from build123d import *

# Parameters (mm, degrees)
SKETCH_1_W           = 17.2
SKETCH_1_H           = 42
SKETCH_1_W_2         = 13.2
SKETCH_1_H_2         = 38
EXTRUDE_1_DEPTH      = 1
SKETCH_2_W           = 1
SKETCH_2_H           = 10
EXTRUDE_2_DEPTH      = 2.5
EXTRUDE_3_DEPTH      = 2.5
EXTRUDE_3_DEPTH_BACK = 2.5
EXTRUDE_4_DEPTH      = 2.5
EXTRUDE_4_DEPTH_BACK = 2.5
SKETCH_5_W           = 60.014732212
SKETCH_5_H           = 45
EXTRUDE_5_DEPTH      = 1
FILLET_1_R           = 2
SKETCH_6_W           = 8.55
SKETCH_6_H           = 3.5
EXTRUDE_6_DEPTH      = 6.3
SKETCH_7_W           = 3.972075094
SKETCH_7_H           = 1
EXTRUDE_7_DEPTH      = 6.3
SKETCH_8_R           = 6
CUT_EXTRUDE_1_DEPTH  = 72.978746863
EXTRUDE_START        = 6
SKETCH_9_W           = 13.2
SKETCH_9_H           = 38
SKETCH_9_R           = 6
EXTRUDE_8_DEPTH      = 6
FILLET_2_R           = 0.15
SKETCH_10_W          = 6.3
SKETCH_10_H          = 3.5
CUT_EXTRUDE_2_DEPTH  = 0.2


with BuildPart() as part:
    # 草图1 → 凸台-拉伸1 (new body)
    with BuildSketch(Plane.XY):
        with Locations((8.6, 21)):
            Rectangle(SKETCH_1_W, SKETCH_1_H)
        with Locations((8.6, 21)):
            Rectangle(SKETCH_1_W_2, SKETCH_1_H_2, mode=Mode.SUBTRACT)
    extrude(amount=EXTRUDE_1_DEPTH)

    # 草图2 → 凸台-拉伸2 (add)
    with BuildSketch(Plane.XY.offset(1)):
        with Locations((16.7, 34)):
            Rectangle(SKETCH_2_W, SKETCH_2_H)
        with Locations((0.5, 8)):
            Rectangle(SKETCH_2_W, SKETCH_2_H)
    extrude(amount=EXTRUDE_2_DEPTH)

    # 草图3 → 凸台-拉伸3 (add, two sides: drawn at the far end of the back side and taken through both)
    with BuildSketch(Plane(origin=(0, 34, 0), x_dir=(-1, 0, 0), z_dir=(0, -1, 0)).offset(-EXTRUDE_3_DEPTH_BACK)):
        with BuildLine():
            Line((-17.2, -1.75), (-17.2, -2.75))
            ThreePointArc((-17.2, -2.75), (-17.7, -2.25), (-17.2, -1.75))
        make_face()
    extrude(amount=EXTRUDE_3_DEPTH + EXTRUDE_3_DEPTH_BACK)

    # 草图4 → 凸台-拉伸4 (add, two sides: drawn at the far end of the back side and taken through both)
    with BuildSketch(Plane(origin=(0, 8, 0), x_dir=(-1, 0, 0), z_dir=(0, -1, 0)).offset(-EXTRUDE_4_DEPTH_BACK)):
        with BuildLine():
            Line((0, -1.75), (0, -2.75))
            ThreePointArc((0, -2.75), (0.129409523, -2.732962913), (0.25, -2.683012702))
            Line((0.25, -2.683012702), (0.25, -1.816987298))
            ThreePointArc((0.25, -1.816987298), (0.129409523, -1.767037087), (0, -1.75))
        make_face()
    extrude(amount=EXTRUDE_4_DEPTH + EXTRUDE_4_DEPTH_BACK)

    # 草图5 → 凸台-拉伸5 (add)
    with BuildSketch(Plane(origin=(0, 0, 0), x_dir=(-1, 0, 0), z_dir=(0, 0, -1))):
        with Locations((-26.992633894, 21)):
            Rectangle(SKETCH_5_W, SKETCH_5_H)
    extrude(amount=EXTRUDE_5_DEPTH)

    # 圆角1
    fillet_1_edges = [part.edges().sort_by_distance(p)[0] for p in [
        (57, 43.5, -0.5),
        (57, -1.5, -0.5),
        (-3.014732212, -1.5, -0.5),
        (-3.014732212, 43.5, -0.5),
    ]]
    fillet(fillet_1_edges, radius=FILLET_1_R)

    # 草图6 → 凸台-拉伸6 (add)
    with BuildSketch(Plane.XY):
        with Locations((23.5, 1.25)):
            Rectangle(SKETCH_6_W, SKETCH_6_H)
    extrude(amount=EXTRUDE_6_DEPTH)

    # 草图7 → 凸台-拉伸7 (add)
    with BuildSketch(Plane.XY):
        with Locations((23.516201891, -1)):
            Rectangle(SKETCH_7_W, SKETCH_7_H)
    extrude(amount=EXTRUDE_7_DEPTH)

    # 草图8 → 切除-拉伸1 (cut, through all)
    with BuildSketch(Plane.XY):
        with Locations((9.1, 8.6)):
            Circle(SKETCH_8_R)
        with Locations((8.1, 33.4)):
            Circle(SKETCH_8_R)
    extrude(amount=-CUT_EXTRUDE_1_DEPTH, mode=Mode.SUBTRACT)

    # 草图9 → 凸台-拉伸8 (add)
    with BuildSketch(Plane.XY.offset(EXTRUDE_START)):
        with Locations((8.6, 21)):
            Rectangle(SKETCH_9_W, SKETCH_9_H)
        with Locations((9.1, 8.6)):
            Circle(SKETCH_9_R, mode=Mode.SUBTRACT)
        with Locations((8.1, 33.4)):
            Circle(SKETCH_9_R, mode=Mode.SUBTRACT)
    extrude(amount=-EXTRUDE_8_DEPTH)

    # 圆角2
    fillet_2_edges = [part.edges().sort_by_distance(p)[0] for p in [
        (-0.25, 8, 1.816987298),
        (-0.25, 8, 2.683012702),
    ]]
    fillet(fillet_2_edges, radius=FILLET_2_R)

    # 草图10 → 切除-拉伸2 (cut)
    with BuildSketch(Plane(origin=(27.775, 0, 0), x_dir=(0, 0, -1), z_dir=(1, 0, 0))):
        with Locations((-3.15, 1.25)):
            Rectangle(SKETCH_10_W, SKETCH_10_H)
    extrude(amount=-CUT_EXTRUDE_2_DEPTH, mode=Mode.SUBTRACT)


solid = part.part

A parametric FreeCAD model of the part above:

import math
import FreeCAD as App
import Part
import Sketcher
from FreeCAD import Vector


def edges_at(feature, points):
    """Names of the edges that pass closest to the given points."""
    edges = feature.Shape.Edges
    near = lambda p: min(range(len(edges)), key=lambda i: edges[i].distToShape(Part.Vertex(*p))[0])
    return sorted({f"Edge{near(p) + 1}" for p in points})

doc = App.newDocument("Part")
body = doc.addObject("PartDesign::Body", "Body")

sketch1 = body.newObject("Sketcher::SketchObject", "Sketch")
sketch1.AttachmentSupport = (doc.getObject("XY_Plane"), [""])
sketch1.MapMode = "FlatFace"
sketch1.addGeometry([
    Part.LineSegment(Vector(0, 42, 0), Vector(0, 0, 0)),
    Part.LineSegment(Vector(0, 0, 0), Vector(17, 0, 0)),
    Part.LineSegment(Vector(17, 0, 0), Vector(17, 42, 0)),
    Part.LineSegment(Vector(17, 42, 0), Vector(0, 42, 0)),
    Part.LineSegment(Vector(15, 2, 0), Vector(2, 2, 0)),
    Part.LineSegment(Vector(2, 2, 0), Vector(2, 40, 0)),
    Part.LineSegment(Vector(2, 40, 0), Vector(15, 40, 0)),
    Part.LineSegment(Vector(15, 40, 0), Vector(15, 2, 0)),
], False)
sketch1.addConstraint([
    Sketcher.Constraint("Coincident", 0, 2, 1, 1),
    Sketcher.Constraint("Coincident", 1, 2, 2, 1),
    Sketcher.Constraint("Coincident", 2, 2, 3, 1),
    Sketcher.Constraint("Coincident", 3, 2, 0, 1),
    Sketcher.Constraint("Coincident", 4, 2, 5, 1),
    Sketcher.Constraint("Coincident", 5, 2, 6, 1),
    Sketcher.Constraint("Coincident", 6, 2, 7, 1),
    Sketcher.Constraint("Coincident", 7, 2, 4, 1),
    Sketcher.Constraint("Vertical", 0),
    Sketcher.Constraint("Horizontal", 1),
    Sketcher.Constraint("Vertical", 2),
    Sketcher.Constraint("Horizontal", 3),
    Sketcher.Constraint("Horizontal", 4),
    Sketcher.Constraint("Vertical", 5),
    Sketcher.Constraint("Horizontal", 6),
    Sketcher.Constraint("Vertical", 7),
    Sketcher.Constraint("Coincident", 0, 2, -1, 1),
    Sketcher.Constraint("DistanceY", 0, 2, 0, 1, 42.0),
    Sketcher.Constraint("DistanceY", 5, 1, 5, 2, 38.0),
    Sketcher.Constraint("DistanceX", 1, 1, 1, 2, 17.2),
    Sketcher.Constraint("DistanceX", 4, 2, 4, 1, 13.2),
    Sketcher.Constraint("DistanceX", -1, 1, 4, 2, 2.0),
    Sketcher.Constraint("DistanceY", -1, 1, 4, 2, 2.0),
])
pad1 = body.newObject("PartDesign::Pad", "Pad")
pad1.Profile = sketch1
pad1.Length = 1

sketch2 = body.newObject("Sketcher::SketchObject", "Sketch001")
sketch2.AttachmentSupport = (doc.getObject("XY_Plane"), [""])
sketch2.MapMode = "FlatFace"
sketch2.AttachmentOffset = App.Placement(Vector(0, 0, 1), App.Rotation())
sketch2.addGeometry([
    Part.LineSegment(Vector(16.2, 39, 0), Vector(16.2, 29, 0)),
    Part.LineSegment(Vector(16.2, 29, 0), Vector(17.2, 29, 0)),
    Part.LineSegment(Vector(17.2, 29, 0), Vector(17.2, 39, 0)),
    Part.LineSegment(Vector(17.2, 39, 0), Vector(16.2, 39, 0)),
    Part.LineSegment(Vector(0, 13, 0), Vector(0, 3, 0)),
    Part.LineSegment(Vector(0, 3, 0), Vector(1, 3, 0)),
    Part.LineSegment(Vector(1, 3, 0), Vector(1, 13, 0)),
    Part.LineSegment(Vector(1, 13, 0), Vector(0, 13, 0)),
], False)
sketch2.addConstraint([
    Sketcher.Constraint("Coincident", 0, 2, 1, 1),
    Sketcher.Constraint("Coincident", 1, 2, 2, 1),
    Sketcher.Constraint("Coincident", 2, 2, 3, 1),
    Sketcher.Constraint("Coincident", 3, 2, 0, 1),
    Sketcher.Constraint("Coincident", 4, 2, 5, 1),
    Sketcher.Constraint("Coincident", 5, 2, 6, 1),
    Sketcher.Constraint("Coincident", 6, 2, 7, 1),
    Sketcher.Constraint("Coincident", 7, 2, 4, 1),
    Sketcher.Constraint("Vertical", 0),
    Sketcher.Constraint("Horizontal", 1),
    Sketcher.Constraint("Vertical", 2),
    Sketcher.Constraint("Horizontal", 3),
    Sketcher.Constraint("Vertical", 4),
    Sketcher.Constraint("Horizontal", 5),
    Sketcher.Constraint("Vertical", 6),
    Sketcher.Constraint("Horizontal", 7),
    Sketcher.Constraint("PointOnObject", 4, 2, -2),
    Sketcher.Constraint("Equal", 3, 5),
    Sketcher.Constraint("Equal", 2, 4),
    Sketcher.Constraint("DistanceX", 1, 1, 1, 2, 1.0),
    Sketcher.Constraint("DistanceY", 0, 2, 0, 1, 10.0),
    Sketcher.Constraint("DistanceY", -1, 1, 0, 2, 29.0),
    Sketcher.Constraint("DistanceY", -1, 1, 4, 2, 3.0),
    Sketcher.Constraint("DistanceX", -1, 1, 0, 2, 16.2),
])
pad2 = body.newObject("PartDesign::Pad", "Pad001")
pad2.Profile = sketch2
pad2.Length = 2.5

sketch3 = body.newObject("Sketcher::SketchObject", "Sketch002")
sketch3.AttachmentSupport = (doc.getObject("XZ_Plane"), [""])
sketch3.MapMode = "FlatFace"
sketch3.AttachmentOffset = App.Placement(Vector(0, 0, -34), App.Rotation())
sketch3.addGeometry([
    Part.LineSegment(Vector(17.2, 2.8, 0), Vector(17.2, 1.8, 0)),
    Part.ArcOfCircle(Part.Circle(Vector(17.2, 2.2, 0), Vector(0, 0, 1), 0.5), math.radians(-90), math.radians(90)),
], False)
sketch3.addConstraint([
    Sketcher.Constraint("Coincident", 0, 1, 1, 2),
    Sketcher.Constraint("Coincident", 1, 1, 0, 2),
    Sketcher.Constraint("Vertical", 0),
    Sketcher.Constraint("Vertical", 1, 3, 0, 1),
    Sketcher.Constraint("Radius", 1, 0.5),
    Sketcher.Constraint("DistanceX", -1, 1, 1, 3, 17.2),
    Sketcher.Constraint("DistanceY", -1, 1, 1, 3, 2.25),
])
pad3 = body.newObject("PartDesign::Pad", "Pad002")
pad3.Profile = sketch3
pad3.Type = "TwoLengths"
pad3.Length = 2.5
pad3.Length2 = 2.5

sketch4 = body.newObject("Sketcher::SketchObject", "Sketch003")
sketch4.AttachmentSupport = (doc.getObject("XZ_Plane"), [""])
sketch4.MapMode = "FlatFace"
sketch4.AttachmentOffset = App.Placement(Vector(0, 0, -8), App.Rotation())
sketch4.addGeometry([
    Part.LineSegment(Vector(0, 1.75, 0), Vector(0, 2.75, 0)),
    Part.ArcOfCircle(Part.Circle(Vector(0, 2.25, 0), Vector(0, 0, 1), 0.5), math.radians(90), math.radians(120)),
    Part.LineSegment(Vector(-0.25, 2.68, 0), Vector(-0.25, 1.82, 0)),
    Part.ArcOfCircle(Part.Circle(Vector(0, 2.25, 0), Vector(0, 0, 1), 0.5), math.radians(-120), math.radians(-90)),
], False)
sketch4.addConstraint([
    Sketcher.Constraint("Coincident", 0, 2, 1, 1),
    Sketcher.Constraint("Coincident", 1, 2, 2, 1),
    Sketcher.Constraint("Coincident", 2, 2, 3, 1),
    Sketcher.Constraint("Coincident", 3, 2, 0, 1),
    Sketcher.Constraint("Vertical", 0),
    Sketcher.Constraint("Vertical", 2),
    Sketcher.Constraint("Coincident", 3, 3, 1, 3),
    Sketcher.Constraint("Equal", 1, 3),
    Sketcher.Constraint("PointOnObject", 1, 3, -2),
    Sketcher.Constraint("PointOnObject", 0, 2, -2),
    Sketcher.Constraint("Radius", 1, 0.5),
    Sketcher.Constraint("DistanceY", -1, 1, 1, 3, 2.25),
    Sketcher.Constraint("DistanceX", 1, 2, -1, 1, 0.25),
])
pad4 = body.newObject("PartDesign::Pad", "Pad003")
pad4.Profile = sketch4
pad4.Type = "TwoLengths"
pad4.Length = 2.5
pad4.Length2 = 2.5

sketch5 = body.newObject("Sketcher::SketchObject", "Sketch004")
sketch5.AttachmentSupport = (doc.getObject("XY_Plane"), [""])
sketch5.MapMode = "FlatFace"
sketch5.addGeometry([
    Part.LineSegment(Vector(57, 44, 0), Vector(57, -2, 0)),
    Part.LineSegment(Vector(57, -2, 0), Vector(-3, -2, 0)),
    Part.LineSegment(Vector(-3, -2, 0), Vector(-3, 44, 0)),
    Part.LineSegment(Vector(-3, 44, 0), Vector(57, 44, 0)),
], False)
sketch5.addConstraint([
    Sketcher.Constraint("Coincident", 0, 2, 1, 1),
    Sketcher.Constraint("Coincident", 1, 2, 2, 1),
    Sketcher.Constraint("Coincident", 2, 2, 3, 1),
    Sketcher.Constraint("Coincident", 3, 2, 0, 1),
    Sketcher.Constraint("Vertical", 0),
    Sketcher.Constraint("Horizontal", 1),
    Sketcher.Constraint("Vertical", 2),
    Sketcher.Constraint("Horizontal", 3),
    Sketcher.Constraint("DistanceY", 0, 2, 0, 1, 45.0),
    Sketcher.Constraint("DistanceX", -1, 1, 0, 2, 57.0),
    Sketcher.Constraint("DistanceY", 0, 2, -1, 1, 1.5),
    Sketcher.Constraint("DistanceX", 1, 2, 1, 1, 60.014732),
])
pad5 = body.newObject("PartDesign::Pad", "Pad004")
pad5.Profile = sketch5
pad5.Length = 1
pad5.Reversed = True
doc.recompute()

fillet = body.newObject("PartDesign::Fillet", "Fillet")
fillet.Base = (pad5, edges_at(pad5, [
    (57, 43.5, -0.5),
    (57, -1.5, -0.5),
    (-3.015, -1.5, -0.5),
    (-3.015, 43.5, -0.5),
]))
fillet.Radius = 2

sketch6 = body.newObject("Sketcher::SketchObject", "Sketch005")
sketch6.AttachmentSupport = (doc.getObject("XY_Plane"), [""])
sketch6.MapMode = "FlatFace"
sketch6.addGeometry([
    Part.LineSegment(Vector(19.2, 3, 0), Vector(19.2, -0.5, 0)),
    Part.LineSegment(Vector(19.2, -0.5, 0), Vector(27.8, -0.5, 0)),
    Part.LineSegment(Vector(27.8, -0.5, 0), Vector(27.8, 3, 0)),
    Part.LineSegment(Vector(27.8, 3, 0), Vector(19.2, 3, 0)),
], False)
sketch6.addConstraint([
    Sketcher.Constraint("Coincident", 0, 2, 1, 1),
    Sketcher.Constraint("Coincident", 1, 2, 2, 1),
    Sketcher.Constraint("Coincident", 2, 2, 3, 1),
    Sketcher.Constraint("Coincident", 3, 2, 0, 1),
    Sketcher.Constraint("Vertical", 0),
    Sketcher.Constraint("Horizontal", 1),
    Sketcher.Constraint("Vertical", 2),
    Sketcher.Constraint("Horizontal", 3),
    Sketcher.Constraint("DistanceY", 0, 2, 0, 1, 3.5),
    Sketcher.Constraint("DistanceY", -1, 1, 2, 2, 3.0),
    Sketcher.Constraint("DistanceX", 1, 1, 1, 2, 8.55),
    Sketcher.Constraint("DistanceX", -1, 1, 0, 2, 19.225),
])
pad6 = body.newObject("PartDesign::Pad", "Pad005")
pad6.Profile = sketch6
pad6.Length = 6.3

sketch7 = body.newObject("Sketcher::SketchObject", "Sketch006")
sketch7.AttachmentSupport = (doc.getObject("XY_Plane"), [""])
sketch7.MapMode = "FlatFace"
sketch7.addGeometry([
    Part.LineSegment(Vector(21.5, -0.5, 0), Vector(21.5, -1.5, 0)),
    Part.LineSegment(Vector(21.5, -1.5, 0), Vector(25.5, -1.5, 0)),
    Part.LineSegment(Vector(25.5, -1.5, 0), Vector(25.5, -0.5, 0)),
    Part.LineSegment(Vector(25.5, -0.5, 0), Vector(21.5, -0.5, 0)),
], False)
sketch7.addConstraint([
    Sketcher.Constraint("Coincident", 0, 2, 1, 1),
    Sketcher.Constraint("Coincident", 1, 2, 2, 1),
    Sketcher.Constraint("Coincident", 2, 2, 3, 1),
    Sketcher.Constraint("Coincident", 3, 2, 0, 1),
    Sketcher.Constraint("Vertical", 0),
    Sketcher.Constraint("Horizontal", 1),
    Sketcher.Constraint("Vertical", 2),
    Sketcher.Constraint("Horizontal", 3),
    Sketcher.Constraint("DistanceY", 0, 2, 0, 1, 1.0),
    Sketcher.Constraint("DistanceY", 0, 2, -1, 1, 1.5),
    Sketcher.Constraint("DistanceX", 1, 1, 1, 2, 3.972075),
    Sketcher.Constraint("DistanceX", -1, 1, 1, 2, 25.502239),
])
pad7 = body.newObject("PartDesign::Pad", "Pad006")
pad7.Profile = sketch7
pad7.Length = 6.3

sketch8 = body.newObject("Sketcher::SketchObject", "Sketch007")
sketch8.AttachmentSupport = (doc.getObject("XY_Plane"), [""])
sketch8.MapMode = "FlatFace"
sketch8.addGeometry([
    Part.Circle(Vector(9, 9, 0), Vector(0, 0, 1), 6),
    Part.Circle(Vector(8, 33, 0), Vector(0, 0, 1), 6),
], False)
sketch8.addConstraint([
    Sketcher.Constraint("Equal", 0, 1),
    Sketcher.Constraint("Diameter", 0, 12.0),
    Sketcher.Constraint("DistanceX", 1, 3, 0, 3, 1.0),
    Sketcher.Constraint("DistanceX", -1, 1, 0, 3, 9.1),
    Sketcher.Constraint("DistanceY", -1, 1, 0, 3, 8.6),
    Sketcher.Constraint("DistanceY", -1, 1, 1, 3, 33.4),
])
pocket1 = body.newObject("PartDesign::Pocket", "Pocket")
pocket1.Profile = sketch8
pocket1.Type = "ThroughAll"

sketch9 = body.newObject("Sketcher::SketchObject", "Sketch008")
sketch9.AttachmentSupport = (doc.getObject("XY_Plane"), [""])
sketch9.MapMode = "FlatFace"
sketch9.AttachmentOffset = App.Placement(Vector(0, 0, 6), App.Rotation())
sketch9.addGeometry([
    Part.LineSegment(Vector(2, 40, 0), Vector(2, 2, 0)),
    Part.LineSegment(Vector(2, 2, 0), Vector(15, 2, 0)),
    Part.LineSegment(Vector(15, 2, 0), Vector(15, 40, 0)),
    Part.LineSegment(Vector(15, 40, 0), Vector(2, 40, 0)),
    Part.Circle(Vector(9, 9, 0), Vector(0, 0, 1), 6),
    Part.Circle(Vector(8, 33, 0), Vector(0, 0, 1), 6),
], False)
sketch9.addConstraint([
    Sketcher.Constraint("Coincident", 0, 2, 1, 1),
    Sketcher.Constraint("Coincident", 1, 2, 2, 1),
    Sketcher.Constraint("Coincident", 2, 2, 3, 1),
    Sketcher.Constraint("Coincident", 3, 2, 0, 1),
    Sketcher.Constraint("Vertical", 0),
    Sketcher.Constraint("Horizontal", 1),
    Sketcher.Constraint("Vertical", 2),
    Sketcher.Constraint("Horizontal", 3),
    Sketcher.Constraint("Equal", 4, 5),
    Sketcher.Constraint("Diameter", 4, 12.0),
    Sketcher.Constraint("DistanceY", 0, 2, 0, 1, 38.0),
    Sketcher.Constraint("DistanceX", 1, 1, 1, 2, 13.2),
    Sketcher.Constraint("DistanceX", -1, 1, 0, 2, 2.0),
    Sketcher.Constraint("DistanceY", -1, 1, 0, 2, 2.0),
    Sketcher.Constraint("DistanceX", 5, 3, 4, 3, 1.0),
    Sketcher.Constraint("DistanceX", -1, 1, 4, 3, 9.1),
    Sketcher.Constraint("DistanceY", -1, 1, 4, 3, 8.6),
    Sketcher.Constraint("DistanceY", -1, 1, 5, 3, 33.4),
])
pad8 = body.newObject("PartDesign::Pad", "Pad007")
pad8.Profile = sketch9
pad8.Length = 6
pad8.Reversed = True
doc.recompute()

fillet2 = body.newObject("PartDesign::Fillet", "Fillet001")
fillet2.Base = (pad8, edges_at(pad8, [(-0.25, 8, 1.817), (-0.25, 8, 2.683)]))
fillet2.Radius = 0.15

sketch10 = body.newObject("Sketcher::SketchObject", "Sketch009")
sketch10.AttachmentSupport = (doc.getObject("YZ_Plane"), [""])
sketch10.MapMode = "FlatFace"
sketch10.AttachmentOffset = App.Placement(Vector(0, 0, 27.775), App.Rotation())
sketch10.addGeometry([
    Part.LineSegment(Vector(3, 6.3, 0), Vector(-0.5, 6.3, 0)),
    Part.LineSegment(Vector(-0.5, 6.3, 0), Vector(-0.5, 0, 0)),
    Part.LineSegment(Vector(-0.5, 0, 0), Vector(3, 0, 0)),
    Part.LineSegment(Vector(3, 0, 0), Vector(3, 6.3, 0)),
], False)
sketch10.addConstraint([
    Sketcher.Constraint("Coincident", 0, 2, 1, 1),
    Sketcher.Constraint("Coincident", 1, 2, 2, 1),
    Sketcher.Constraint("Coincident", 2, 2, 3, 1),
    Sketcher.Constraint("Coincident", 3, 2, 0, 1),
    Sketcher.Constraint("Horizontal", 0),
    Sketcher.Constraint("Vertical", 1),
    Sketcher.Constraint("Horizontal", 2),
    Sketcher.Constraint("Vertical", 3),
    Sketcher.Constraint("PointOnObject", 1, 2, -1),
    Sketcher.Constraint("DistanceX", 0, 2, 0, 1, 3.5),
    Sketcher.Constraint("DistanceY", 1, 2, 1, 1, 6.3),
    Sketcher.Constraint("DistanceX", -1, 1, 2, 2, 3.0),
])
pocket2 = body.newObject("PartDesign::Pocket", "Pocket001")
pocket2.Profile = sketch10
pocket2.Length = 0.2

doc.recompute()
